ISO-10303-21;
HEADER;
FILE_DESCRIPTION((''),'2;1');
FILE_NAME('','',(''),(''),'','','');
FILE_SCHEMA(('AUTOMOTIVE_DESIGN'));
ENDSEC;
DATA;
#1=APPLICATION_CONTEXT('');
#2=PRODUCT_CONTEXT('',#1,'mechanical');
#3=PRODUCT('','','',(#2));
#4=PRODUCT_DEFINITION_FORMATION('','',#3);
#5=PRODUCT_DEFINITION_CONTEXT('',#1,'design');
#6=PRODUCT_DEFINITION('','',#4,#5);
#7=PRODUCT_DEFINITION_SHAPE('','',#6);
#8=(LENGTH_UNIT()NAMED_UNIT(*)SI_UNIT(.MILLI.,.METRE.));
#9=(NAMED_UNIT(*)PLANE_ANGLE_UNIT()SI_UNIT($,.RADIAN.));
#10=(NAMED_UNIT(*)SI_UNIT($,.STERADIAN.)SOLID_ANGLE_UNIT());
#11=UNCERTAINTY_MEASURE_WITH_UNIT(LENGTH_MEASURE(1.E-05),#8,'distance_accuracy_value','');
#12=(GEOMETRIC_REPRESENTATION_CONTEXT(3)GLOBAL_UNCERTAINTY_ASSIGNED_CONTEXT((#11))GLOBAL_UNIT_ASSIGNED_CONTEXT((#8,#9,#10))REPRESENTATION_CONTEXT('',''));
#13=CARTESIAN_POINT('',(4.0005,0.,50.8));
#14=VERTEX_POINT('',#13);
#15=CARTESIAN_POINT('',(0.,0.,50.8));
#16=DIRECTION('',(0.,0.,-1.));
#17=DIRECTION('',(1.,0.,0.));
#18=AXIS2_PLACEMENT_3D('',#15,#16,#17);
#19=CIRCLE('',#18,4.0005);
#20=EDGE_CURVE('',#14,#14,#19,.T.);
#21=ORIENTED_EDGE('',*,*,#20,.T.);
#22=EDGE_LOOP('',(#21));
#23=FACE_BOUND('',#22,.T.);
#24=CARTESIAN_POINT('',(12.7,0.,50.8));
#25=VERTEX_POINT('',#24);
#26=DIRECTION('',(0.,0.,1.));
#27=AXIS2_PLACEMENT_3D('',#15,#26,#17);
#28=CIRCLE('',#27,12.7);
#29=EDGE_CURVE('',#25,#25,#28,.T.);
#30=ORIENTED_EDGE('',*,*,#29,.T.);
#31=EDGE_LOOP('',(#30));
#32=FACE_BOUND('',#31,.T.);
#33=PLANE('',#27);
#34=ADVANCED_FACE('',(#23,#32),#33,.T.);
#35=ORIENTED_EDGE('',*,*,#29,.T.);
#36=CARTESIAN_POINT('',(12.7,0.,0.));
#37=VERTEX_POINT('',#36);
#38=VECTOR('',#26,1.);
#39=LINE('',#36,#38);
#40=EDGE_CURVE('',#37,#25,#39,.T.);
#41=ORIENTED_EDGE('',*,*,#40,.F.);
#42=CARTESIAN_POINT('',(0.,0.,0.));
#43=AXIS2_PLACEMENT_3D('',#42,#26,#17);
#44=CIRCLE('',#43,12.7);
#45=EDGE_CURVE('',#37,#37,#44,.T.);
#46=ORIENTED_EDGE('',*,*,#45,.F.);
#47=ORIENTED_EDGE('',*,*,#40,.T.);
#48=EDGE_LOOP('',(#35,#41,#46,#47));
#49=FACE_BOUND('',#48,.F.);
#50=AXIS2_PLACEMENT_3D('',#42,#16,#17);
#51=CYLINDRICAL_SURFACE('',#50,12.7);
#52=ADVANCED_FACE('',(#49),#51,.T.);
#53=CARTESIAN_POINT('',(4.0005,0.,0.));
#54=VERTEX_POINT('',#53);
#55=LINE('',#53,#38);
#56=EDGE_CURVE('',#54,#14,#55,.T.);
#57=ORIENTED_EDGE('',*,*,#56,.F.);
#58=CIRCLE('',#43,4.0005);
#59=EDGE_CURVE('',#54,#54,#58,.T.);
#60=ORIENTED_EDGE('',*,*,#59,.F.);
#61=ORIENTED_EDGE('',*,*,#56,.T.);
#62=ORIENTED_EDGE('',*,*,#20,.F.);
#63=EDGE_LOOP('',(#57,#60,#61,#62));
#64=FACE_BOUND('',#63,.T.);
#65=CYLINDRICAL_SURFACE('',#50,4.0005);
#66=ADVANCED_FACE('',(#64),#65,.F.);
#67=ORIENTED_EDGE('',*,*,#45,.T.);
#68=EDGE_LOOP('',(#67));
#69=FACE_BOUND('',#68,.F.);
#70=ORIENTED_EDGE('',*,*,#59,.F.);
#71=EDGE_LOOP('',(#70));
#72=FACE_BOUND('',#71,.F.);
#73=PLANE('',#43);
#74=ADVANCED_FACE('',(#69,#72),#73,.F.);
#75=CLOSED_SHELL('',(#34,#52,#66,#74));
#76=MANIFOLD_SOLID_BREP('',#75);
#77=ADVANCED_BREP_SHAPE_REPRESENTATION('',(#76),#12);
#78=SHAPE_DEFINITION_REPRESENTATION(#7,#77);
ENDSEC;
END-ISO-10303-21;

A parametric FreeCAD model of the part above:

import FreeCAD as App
import Part
import Sketcher

V = App.Vector
Q = App.Units.Quantity

doc = App.newDocument("Part")
body = doc.addObject("PartDesign::Body", "Body")

# Sketch on XY plane
sketch1 = body.newObject("Sketcher::SketchObject", "Sketch")
sketch1.AttachmentSupport = (doc.getObject("XY_Plane"), [""])
sketch1.MapMode = "FlatFace"
sketch1.addGeometry(Part.Circle(V(0, 0, 0), V(0, 0, 1), 12.7), False)
sketch1.addConstraint([
    Sketcher.Constraint("Coincident", 0, 3, -1, 1),
    Sketcher.Constraint("Diameter", 0, Q("1 in")),
])
pad1 = body.newObject("PartDesign::Pad", "Pad")
pad1.Profile = sketch1
pad1.Length = Q("2 in")

# Sketch on XY plane
sketch2 = body.newObject("Sketcher::SketchObject", "Sketch001")
sketch2.AttachmentSupport = (doc.getObject("XY_Plane"), [""])
sketch2.MapMode = "FlatFace"
sketch2.addGeometry(Part.Circle(V(0, 0, 0), V(0, 0, 1), 4.0005), False)
sketch2.addConstraint([
    Sketcher.Constraint("Coincident", 0, 3, -1, 1),
    Sketcher.Constraint("Diameter", 0, Q("0.315 in")),
])
pocket1 = body.newObject("PartDesign::Pocket", "Pocket")
pocket1.Profile = sketch2
pocket1.Type = "ThroughAll"
pocket1.Reversed = True

doc.recompute()
